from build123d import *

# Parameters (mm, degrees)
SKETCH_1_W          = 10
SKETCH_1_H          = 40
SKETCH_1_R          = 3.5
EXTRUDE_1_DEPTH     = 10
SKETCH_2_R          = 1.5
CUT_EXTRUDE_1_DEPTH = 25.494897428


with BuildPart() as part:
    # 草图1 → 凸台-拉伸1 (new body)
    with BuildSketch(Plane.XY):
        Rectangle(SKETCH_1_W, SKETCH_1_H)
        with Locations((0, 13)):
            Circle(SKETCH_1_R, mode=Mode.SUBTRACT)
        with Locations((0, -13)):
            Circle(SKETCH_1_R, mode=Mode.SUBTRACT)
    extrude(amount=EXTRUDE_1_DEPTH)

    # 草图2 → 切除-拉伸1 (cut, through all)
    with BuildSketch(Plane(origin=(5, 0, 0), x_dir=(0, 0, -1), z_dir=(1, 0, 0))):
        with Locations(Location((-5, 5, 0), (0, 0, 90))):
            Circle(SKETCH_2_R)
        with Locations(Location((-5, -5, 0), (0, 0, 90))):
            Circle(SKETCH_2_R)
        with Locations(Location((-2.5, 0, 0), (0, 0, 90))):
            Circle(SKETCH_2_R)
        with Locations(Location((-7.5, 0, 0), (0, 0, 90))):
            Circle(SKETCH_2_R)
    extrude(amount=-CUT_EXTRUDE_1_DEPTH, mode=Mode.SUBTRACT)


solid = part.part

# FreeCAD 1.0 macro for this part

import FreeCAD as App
import Part
import Sketcher
from FreeCAD import Vector
Q = App.Units.Quantity


def add_polygon(sketch, points):
    """Adds a closed chain of lines whose ends are joined by coincident constraints."""
    first, n = sketch.GeometryCount, len(points)
    for a, b in zip(points, points[1:] + points[:1]):
        sketch.addGeometry(Part.LineSegment(App.Vector(*a, 0), App.Vector(*b, 0)), False)
    for i in range(n):
        sketch.addConstraint(Sketcher.Constraint("Coincident", first + i, 2, first + (i + 1) % n, 1))

doc = App.newDocument("Part")
params = doc.addObject("Spreadsheet::Sheet", "Params")
for row, (alias, value) in enumerate([
    ("sketch1_diameter", "7 mm"),
    ("sketch1_width", "10 mm"),
    ("sketch1_height", "40 mm"),
    ("pad1_length", "10 mm"),
    ("sketch2_diameter", "3 mm"),
], start=1):
    params.set(f"A{row}", alias)
    params.set(f"B{row}", "=" + value)
    params.setAlias(f"B{row}", alias)

body = doc.addObject("PartDesign::Body", "Body")

# Sketch on XY plane
sketch1 = doc.addObject("Sketcher::SketchObject", "Sketch")
body.addObject(sketch1)
sketch1.AttachmentSupport = (doc.XY_Plane, [""])
sketch1.MapMode = "FlatFace"
add_polygon(sketch1, [(-5, 20), (-5, -20), (5, -20), (5, 20)])  # lines 0-3
sketch1.addGeometry(Part.Circle(Vector(0, -13, 0), Vector(0, 0, 1), 3.5), False)  # 4
sketch1.addGeometry(Part.Circle(Vector(0, 13, 0), Vector(0, 0, 1), 3.5), False)  # 5
sketch1.addConstraint([
    Sketcher.Constraint("Vertical", 0),
    Sketcher.Constraint("Horizontal", 1),
    Sketcher.Constraint("Vertical", 2),
    Sketcher.Constraint("Horizontal", 3),
    Sketcher.Constraint("Equal", 4, 5),
    Sketcher.Constraint("Symmetric", 4, 3, 5, 3, -1, 1),
    Sketcher.Constraint("Symmetric", 0, 2, 2, 2, -1, 1),
    Sketcher.Constraint("PointOnObject", 4, 3, -2),
    Sketcher.Constraint("Diameter", 4, Q("7 mm")),
    Sketcher.Constraint("DistanceX", 1, 1, 1, 2, Q("10 mm")),
    Sketcher.Constraint("DistanceY", 0, 2, 0, 1, Q("40 mm")),
    Sketcher.Constraint("DistanceY", 4, 3, -1, 1, Q("13 mm")),
])
sketch1.setExpression("Constraints[12]", "Params.sketch1_diameter")
sketch1.setExpression("Constraints[13]", "Params.sketch1_width")
sketch1.setExpression("Constraints[14]", "Params.sketch1_height")
pad1 = doc.addObject("PartDesign::Pad", "Pad")
body.addObject(pad1)
pad1.Profile = sketch1
pad1.setExpression("Length", "Params.pad1_length")

# Sketch on YZ plane
sketch2 = doc.addObject("Sketcher::SketchObject", "Sketch001")
body.addObject(sketch2)
sketch2.AttachmentSupport = (doc.YZ_Plane, [""])
sketch2.MapMode = "FlatFace"
sketch2.AttachmentOffset = App.Placement(Vector(0, 0, 5), App.Rotation())
sketch2.addGeometry([
    Part.Circle(Vector(5, 5, 0), Vector(0, 0, 1), 1.5),
    Part.Circle(Vector(-5, 5, 0), Vector(0, 0, 1), 1.5),
    Part.Circle(Vector(0, 2.5, 0), Vector(0, 0, 1), 1.5),
    Part.Circle(Vector(0, 7.5, 0), Vector(0, 0, 1), 1.5),
], False)
sketch2.addConstraint([
    Sketcher.Constraint("Equal", 0, 1),
    Sketcher.Constraint("Equal", 1, 2),
    Sketcher.Constraint("Equal", 2, 3),
    Sketcher.Constraint("Symmetric", 0, 3, 1, 3, -2),
    Sketcher.Constraint("PointOnObject", 2, 3, -2),
    Sketcher.Constraint("PointOnObject", 3, 3, -2),
    Sketcher.Constraint("Diameter", 0, Q("3 mm")),
    Sketcher.Constraint("DistanceX", -1, 1, 0, 3, Q("5 mm")),
    Sketcher.Constraint("DistanceY", -1, 1, 0, 3, Q("5 mm")),
    Sketcher.Constraint("DistanceY", 2, 3, 3, 3, Q("5 mm")),
    Sketcher.Constraint("DistanceY", -1, 1, 2, 3, Q("2.5 mm")),
])
sketch2.setExpression("Constraints[6]", "Params.sketch2_diameter")
pocket1 = doc.addObject("PartDesign::Pocket", "Pocket")
body.addObject(pocket1)
pocket1.Profile = sketch2
pocket1.Type = "ThroughAll"

doc.recompute()
